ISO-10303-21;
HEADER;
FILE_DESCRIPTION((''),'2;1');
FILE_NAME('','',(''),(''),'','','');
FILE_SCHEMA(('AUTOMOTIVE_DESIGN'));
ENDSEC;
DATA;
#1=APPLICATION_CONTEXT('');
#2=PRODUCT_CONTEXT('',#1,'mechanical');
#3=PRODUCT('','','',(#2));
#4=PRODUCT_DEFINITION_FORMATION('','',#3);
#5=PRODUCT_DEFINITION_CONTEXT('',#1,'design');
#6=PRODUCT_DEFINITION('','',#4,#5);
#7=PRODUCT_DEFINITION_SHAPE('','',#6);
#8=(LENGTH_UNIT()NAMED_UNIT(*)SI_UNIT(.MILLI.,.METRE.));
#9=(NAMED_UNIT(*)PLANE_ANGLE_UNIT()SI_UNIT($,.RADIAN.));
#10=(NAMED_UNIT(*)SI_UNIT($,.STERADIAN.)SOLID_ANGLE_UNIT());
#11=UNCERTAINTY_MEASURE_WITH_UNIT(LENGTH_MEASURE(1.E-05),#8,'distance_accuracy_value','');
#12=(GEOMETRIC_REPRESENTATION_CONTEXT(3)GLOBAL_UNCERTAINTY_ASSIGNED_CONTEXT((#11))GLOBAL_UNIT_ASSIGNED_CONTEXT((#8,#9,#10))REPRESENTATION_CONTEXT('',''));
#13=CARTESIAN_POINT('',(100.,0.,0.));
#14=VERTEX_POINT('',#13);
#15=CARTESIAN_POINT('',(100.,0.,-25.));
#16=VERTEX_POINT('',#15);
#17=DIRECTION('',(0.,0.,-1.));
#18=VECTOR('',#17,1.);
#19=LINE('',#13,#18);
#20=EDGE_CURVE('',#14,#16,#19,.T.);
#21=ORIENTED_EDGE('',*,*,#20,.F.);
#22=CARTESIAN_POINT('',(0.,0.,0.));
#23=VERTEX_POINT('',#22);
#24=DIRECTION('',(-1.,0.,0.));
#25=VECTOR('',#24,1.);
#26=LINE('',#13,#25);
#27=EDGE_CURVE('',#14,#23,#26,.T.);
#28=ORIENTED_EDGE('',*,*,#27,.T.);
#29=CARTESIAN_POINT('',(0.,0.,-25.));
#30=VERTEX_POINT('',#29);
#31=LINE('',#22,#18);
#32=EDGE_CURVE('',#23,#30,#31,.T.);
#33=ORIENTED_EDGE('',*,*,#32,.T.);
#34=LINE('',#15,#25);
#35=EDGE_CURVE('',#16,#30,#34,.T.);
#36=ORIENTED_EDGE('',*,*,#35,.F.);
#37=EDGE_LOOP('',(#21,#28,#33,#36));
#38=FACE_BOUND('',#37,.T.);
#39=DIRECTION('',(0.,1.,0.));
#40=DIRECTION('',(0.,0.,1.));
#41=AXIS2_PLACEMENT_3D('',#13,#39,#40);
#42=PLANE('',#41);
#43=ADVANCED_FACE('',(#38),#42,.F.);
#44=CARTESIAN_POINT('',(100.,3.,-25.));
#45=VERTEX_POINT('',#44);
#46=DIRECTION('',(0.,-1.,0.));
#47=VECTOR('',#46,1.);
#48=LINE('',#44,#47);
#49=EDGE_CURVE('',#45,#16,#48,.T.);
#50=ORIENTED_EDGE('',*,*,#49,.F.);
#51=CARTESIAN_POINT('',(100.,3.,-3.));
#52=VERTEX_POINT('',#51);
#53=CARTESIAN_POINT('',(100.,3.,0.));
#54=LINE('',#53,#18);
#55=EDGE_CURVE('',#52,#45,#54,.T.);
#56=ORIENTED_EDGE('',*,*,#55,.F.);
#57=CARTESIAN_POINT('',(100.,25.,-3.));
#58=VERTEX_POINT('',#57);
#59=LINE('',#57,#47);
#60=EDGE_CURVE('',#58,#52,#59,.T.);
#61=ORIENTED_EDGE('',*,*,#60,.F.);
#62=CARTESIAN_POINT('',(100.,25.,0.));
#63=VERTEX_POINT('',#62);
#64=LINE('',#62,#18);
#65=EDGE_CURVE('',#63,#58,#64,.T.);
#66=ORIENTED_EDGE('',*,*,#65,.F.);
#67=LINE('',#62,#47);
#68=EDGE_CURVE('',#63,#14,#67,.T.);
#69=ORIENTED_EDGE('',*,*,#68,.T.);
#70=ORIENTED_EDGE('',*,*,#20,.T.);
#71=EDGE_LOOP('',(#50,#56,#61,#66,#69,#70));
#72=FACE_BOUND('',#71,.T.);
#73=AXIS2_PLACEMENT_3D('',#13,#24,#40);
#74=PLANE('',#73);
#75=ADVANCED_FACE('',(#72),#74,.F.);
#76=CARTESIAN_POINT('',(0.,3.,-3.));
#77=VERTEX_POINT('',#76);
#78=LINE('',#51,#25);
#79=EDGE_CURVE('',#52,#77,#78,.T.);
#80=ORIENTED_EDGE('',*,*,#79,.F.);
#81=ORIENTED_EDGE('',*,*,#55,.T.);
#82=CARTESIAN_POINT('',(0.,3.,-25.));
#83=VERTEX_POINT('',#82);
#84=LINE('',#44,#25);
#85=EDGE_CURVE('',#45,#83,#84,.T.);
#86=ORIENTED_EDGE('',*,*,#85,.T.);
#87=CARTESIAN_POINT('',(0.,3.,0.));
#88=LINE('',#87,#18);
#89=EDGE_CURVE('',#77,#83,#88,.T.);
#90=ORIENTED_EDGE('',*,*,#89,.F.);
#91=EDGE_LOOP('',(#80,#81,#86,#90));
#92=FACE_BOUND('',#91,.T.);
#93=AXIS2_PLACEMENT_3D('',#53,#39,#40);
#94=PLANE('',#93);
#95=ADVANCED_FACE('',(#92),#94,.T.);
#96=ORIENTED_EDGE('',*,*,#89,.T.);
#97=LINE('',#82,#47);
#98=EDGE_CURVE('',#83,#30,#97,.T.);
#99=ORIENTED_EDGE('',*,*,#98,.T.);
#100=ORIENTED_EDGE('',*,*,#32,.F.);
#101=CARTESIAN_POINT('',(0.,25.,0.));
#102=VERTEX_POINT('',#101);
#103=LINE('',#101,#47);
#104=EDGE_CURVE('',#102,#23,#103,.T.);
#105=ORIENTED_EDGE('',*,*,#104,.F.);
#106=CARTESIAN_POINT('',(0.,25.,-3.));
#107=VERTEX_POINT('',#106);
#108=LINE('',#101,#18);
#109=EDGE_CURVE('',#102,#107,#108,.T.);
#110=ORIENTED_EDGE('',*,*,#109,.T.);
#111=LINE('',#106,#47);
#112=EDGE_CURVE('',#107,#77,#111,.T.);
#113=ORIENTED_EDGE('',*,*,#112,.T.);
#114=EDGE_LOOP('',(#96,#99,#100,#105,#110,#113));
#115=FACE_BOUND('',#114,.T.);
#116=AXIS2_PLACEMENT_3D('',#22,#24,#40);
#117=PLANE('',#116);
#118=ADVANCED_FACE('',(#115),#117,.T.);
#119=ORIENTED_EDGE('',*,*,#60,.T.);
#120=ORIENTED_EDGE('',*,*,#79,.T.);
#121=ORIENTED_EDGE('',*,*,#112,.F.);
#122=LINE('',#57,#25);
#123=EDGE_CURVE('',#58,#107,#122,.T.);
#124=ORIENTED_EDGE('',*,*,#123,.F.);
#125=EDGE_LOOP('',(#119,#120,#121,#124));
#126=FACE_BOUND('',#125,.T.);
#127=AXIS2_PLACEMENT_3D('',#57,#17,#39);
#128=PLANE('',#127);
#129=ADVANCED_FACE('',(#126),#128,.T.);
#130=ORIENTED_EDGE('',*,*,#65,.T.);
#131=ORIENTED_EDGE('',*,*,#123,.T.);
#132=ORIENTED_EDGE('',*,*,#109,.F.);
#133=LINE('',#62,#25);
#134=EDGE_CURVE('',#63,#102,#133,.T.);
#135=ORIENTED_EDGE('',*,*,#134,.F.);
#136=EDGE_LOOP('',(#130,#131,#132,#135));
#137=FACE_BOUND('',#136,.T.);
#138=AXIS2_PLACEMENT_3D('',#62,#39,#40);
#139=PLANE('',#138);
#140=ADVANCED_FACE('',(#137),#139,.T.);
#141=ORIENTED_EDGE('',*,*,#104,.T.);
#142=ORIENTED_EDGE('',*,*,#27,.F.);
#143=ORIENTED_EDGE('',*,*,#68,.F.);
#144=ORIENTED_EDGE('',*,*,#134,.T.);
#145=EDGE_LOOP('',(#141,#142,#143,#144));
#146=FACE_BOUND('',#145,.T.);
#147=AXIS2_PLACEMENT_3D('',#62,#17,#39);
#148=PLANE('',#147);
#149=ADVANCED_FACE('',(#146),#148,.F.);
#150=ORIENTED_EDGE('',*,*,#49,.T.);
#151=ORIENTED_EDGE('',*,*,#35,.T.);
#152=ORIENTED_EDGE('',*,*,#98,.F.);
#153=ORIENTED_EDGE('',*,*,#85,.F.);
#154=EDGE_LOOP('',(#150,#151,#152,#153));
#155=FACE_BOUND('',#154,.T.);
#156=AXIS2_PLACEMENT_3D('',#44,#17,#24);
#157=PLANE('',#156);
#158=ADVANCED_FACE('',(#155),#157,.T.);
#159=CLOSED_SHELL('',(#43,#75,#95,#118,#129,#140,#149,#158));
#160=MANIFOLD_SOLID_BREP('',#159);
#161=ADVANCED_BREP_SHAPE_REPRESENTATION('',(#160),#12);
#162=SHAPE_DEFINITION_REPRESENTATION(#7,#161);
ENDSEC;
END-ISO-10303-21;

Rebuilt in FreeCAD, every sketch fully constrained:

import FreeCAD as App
import Part
import Sketcher
from FreeCAD import Vector
Q = App.Units.Quantity


def add_polygon(sketch, points):
    """Adds a closed chain of lines whose ends are joined by coincident constraints."""
    first, n = sketch.GeometryCount, len(points)
    for a, b in zip(points, points[1:] + points[:1]):
        sketch.addGeometry(Part.LineSegment(App.Vector(*a, 0), App.Vector(*b, 0)), False)
    for i in range(n):
        sketch.addConstraint(Sketcher.Constraint("Coincident", first + i, 2, first + (i + 1) % n, 1))

doc = App.newDocument("Part")
body = doc.addObject("PartDesign::Body", "Body")

# Sketch on YZ plane
sketch1 = doc.addObject("Sketcher::SketchObject", "Sketch")
body.addObject(sketch1)
sketch1.AttachmentSupport = (doc.YZ_Plane, [""])
sketch1.MapMode = "FlatFace"
add_polygon(sketch1, [(25, 0), (0, 0), (0, -25), (3, -25), (3, -3), (25, -3)])  # lines 0-5
sketch1.addConstraint(Sketcher.Constraint("Horizontal", 0))
sketch1.addConstraint(Sketcher.Constraint("Vertical", 1))
sketch1.addConstraint(Sketcher.Constraint("Horizontal", 2))
sketch1.addConstraint(Sketcher.Constraint("Vertical", 3))
sketch1.addConstraint(Sketcher.Constraint("Horizontal", 4))
sketch1.addConstraint(Sketcher.Constraint("Vertical", 5))
sketch1.addConstraint(Sketcher.Constraint("Coincident", 0, 2, -1, 1))
sketch1.addConstraint(Sketcher.Constraint("Equal", 0, 1))
sketch1.addConstraint(Sketcher.Constraint("Equal", 4, 3))
sketch1.addConstraint(Sketcher.Constraint("DistanceX", 0, 2, 0, 1, Q("25 mm")))
sketch1.addConstraint(Sketcher.Constraint("DistanceX", 2, 1, 2, 2, Q("3 mm")))
pad1 = doc.addObject("PartDesign::Pad", "Pad")
body.addObject(pad1)
pad1.Profile = sketch1
pad1.Length = 100

doc.recompute()
